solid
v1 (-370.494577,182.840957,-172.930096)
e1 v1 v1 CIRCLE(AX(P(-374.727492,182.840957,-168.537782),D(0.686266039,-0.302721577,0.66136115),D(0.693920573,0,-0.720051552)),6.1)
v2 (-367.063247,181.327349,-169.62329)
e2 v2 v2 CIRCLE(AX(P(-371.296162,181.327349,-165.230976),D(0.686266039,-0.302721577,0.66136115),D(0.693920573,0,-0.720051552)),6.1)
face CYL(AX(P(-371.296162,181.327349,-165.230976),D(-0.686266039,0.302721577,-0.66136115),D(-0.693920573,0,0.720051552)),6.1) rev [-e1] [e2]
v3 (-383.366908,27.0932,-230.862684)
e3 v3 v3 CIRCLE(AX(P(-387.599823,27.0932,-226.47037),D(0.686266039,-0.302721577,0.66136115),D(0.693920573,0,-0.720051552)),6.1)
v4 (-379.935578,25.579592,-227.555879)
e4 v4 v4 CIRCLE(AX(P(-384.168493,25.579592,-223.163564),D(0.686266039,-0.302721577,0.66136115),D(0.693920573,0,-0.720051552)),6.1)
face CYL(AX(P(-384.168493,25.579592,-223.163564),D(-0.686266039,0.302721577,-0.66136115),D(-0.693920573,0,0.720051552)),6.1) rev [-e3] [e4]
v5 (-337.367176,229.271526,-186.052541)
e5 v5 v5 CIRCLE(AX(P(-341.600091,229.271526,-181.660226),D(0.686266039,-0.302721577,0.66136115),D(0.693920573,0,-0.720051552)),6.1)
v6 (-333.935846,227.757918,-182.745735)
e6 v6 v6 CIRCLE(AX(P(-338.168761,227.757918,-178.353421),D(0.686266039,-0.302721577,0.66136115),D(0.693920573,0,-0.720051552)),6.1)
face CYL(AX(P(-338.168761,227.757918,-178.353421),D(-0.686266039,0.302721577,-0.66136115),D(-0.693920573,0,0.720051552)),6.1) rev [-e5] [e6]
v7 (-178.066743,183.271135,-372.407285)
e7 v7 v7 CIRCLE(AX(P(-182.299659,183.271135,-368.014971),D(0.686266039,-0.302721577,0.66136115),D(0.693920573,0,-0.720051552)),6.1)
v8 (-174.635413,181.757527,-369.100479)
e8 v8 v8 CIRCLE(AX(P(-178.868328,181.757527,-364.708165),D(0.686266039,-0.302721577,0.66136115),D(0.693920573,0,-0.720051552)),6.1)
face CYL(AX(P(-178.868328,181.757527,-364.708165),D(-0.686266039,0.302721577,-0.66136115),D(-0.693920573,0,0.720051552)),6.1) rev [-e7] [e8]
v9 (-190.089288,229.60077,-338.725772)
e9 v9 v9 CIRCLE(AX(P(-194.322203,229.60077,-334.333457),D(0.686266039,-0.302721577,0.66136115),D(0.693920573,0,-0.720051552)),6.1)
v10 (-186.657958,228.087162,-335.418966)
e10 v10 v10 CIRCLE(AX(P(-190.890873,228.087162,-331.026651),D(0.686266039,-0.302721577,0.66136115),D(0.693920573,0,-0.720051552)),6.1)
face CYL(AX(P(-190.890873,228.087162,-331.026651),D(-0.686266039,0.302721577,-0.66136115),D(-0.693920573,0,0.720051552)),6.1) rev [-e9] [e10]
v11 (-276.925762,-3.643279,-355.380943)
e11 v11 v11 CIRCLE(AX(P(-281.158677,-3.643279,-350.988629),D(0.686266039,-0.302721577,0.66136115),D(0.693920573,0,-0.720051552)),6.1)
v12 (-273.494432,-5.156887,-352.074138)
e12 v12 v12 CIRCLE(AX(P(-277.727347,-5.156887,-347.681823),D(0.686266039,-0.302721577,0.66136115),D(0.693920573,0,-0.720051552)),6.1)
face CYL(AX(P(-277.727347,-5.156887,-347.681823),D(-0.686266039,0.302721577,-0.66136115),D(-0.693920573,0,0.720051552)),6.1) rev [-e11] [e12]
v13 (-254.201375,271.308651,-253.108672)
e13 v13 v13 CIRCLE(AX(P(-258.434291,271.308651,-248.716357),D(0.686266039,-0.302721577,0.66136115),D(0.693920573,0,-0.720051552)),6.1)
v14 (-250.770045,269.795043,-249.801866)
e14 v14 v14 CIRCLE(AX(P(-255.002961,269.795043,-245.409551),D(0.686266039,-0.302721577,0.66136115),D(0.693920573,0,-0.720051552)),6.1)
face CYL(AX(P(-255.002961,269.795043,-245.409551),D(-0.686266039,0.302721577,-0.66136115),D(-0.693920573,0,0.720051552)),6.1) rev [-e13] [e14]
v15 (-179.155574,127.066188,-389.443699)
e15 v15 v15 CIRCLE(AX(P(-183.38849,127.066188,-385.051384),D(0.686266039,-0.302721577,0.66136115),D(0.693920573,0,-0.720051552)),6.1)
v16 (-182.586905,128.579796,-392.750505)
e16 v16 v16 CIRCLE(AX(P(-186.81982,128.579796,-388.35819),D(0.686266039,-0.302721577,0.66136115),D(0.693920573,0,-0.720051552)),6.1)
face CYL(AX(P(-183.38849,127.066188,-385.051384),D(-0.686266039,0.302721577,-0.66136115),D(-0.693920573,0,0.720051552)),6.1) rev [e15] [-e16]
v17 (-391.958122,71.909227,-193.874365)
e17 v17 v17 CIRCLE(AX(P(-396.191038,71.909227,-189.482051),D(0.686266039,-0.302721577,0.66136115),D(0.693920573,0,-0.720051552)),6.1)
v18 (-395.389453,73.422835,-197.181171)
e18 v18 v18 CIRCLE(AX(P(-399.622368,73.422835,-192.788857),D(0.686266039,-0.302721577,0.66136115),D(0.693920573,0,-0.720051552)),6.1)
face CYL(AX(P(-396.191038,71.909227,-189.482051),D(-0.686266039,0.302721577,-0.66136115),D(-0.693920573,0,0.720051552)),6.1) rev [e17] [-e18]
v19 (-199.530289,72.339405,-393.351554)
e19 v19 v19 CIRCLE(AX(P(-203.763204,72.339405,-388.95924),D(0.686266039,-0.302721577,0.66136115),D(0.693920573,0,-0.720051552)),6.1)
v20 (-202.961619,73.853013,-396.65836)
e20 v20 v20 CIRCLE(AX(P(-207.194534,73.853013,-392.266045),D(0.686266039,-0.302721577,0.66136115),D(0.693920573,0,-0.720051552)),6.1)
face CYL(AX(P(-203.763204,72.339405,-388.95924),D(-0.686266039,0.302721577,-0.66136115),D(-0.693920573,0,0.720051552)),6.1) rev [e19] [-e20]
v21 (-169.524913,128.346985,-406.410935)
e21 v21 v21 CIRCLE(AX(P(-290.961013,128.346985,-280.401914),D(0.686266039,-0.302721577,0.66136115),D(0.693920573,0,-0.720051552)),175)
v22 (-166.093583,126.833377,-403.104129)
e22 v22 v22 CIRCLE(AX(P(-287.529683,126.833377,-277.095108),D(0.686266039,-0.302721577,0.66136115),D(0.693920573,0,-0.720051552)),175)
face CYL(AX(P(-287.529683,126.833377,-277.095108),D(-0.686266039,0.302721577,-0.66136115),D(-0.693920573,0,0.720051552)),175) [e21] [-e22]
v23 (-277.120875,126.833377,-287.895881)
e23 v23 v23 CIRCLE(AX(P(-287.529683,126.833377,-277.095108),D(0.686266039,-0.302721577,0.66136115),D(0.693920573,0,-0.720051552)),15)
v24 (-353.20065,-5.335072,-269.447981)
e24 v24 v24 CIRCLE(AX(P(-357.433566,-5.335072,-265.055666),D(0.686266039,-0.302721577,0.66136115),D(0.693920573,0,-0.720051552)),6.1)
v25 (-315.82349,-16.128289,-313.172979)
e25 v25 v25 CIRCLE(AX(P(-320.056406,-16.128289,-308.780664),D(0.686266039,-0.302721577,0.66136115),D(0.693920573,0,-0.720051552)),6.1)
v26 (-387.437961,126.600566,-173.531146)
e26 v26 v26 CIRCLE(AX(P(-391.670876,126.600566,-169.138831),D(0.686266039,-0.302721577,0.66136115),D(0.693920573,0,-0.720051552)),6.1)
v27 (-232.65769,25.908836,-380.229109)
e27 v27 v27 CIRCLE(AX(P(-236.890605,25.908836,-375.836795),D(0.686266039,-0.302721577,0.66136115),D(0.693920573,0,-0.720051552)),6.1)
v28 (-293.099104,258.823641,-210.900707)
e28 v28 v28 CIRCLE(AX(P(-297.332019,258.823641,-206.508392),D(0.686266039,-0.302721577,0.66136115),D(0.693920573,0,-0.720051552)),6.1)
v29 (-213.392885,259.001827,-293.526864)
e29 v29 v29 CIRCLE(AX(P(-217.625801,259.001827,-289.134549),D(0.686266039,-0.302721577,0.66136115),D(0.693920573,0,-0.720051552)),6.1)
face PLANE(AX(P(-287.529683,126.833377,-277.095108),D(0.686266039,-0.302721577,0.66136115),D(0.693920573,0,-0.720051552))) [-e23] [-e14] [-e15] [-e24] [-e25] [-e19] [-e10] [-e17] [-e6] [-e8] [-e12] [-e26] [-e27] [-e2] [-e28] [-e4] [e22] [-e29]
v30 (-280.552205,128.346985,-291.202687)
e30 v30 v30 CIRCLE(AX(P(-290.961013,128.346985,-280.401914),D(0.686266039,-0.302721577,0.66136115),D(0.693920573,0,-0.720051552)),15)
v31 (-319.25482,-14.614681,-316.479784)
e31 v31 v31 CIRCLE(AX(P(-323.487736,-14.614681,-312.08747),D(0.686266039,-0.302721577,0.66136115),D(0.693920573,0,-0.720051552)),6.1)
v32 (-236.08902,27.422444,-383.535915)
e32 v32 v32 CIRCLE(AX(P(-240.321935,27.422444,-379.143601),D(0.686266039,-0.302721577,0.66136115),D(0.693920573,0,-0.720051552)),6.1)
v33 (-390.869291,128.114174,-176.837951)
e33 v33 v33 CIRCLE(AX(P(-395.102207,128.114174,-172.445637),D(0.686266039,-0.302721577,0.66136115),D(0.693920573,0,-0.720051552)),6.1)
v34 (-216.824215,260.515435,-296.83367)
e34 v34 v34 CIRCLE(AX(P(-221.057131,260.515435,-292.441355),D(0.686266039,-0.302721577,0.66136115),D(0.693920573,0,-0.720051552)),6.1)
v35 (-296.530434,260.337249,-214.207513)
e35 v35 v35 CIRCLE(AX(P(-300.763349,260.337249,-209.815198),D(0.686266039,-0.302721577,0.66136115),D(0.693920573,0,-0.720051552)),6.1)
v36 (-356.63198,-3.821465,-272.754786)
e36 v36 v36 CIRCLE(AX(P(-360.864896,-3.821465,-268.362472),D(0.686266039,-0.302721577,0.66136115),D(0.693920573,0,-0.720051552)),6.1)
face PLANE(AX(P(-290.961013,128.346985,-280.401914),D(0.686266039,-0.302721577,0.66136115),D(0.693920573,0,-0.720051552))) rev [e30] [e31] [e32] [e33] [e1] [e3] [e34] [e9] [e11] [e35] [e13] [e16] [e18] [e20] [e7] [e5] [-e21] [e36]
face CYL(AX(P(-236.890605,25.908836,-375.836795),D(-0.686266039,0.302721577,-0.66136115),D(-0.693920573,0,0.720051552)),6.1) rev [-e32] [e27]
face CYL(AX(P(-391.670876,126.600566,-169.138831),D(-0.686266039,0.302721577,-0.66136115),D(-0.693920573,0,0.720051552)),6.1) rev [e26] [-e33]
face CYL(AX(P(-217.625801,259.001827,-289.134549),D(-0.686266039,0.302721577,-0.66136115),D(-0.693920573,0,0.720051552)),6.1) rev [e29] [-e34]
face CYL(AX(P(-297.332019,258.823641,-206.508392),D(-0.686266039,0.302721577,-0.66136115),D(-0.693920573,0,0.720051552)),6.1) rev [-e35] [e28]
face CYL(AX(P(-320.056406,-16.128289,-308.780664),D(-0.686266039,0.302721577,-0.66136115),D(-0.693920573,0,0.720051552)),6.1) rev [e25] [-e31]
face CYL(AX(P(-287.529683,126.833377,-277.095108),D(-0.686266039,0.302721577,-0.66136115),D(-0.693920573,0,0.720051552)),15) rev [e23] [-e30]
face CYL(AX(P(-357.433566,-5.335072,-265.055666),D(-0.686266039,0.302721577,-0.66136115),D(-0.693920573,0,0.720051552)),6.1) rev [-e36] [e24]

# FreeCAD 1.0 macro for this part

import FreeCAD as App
import Part
import Sketcher
from FreeCAD import Vector

doc = App.newDocument("Part")
body = doc.addObject("PartDesign::Body", "Body")

# Sketch on an angled plane
sketch1 = body.newObject("Sketcher::SketchObject", "Sketch")
sketch1.Placement = App.Placement(Vector(-290.961013, 128.346985, -280.401914), App.Rotation(Vector(0.616918762, -0.239403959, -0.749731276), Vector(0.385292312, 0.922521215, 0.022459814), Vector(0.686266039, -0.302721577, 0.66136115), "ZXY"))
sketch1.addGeometry(Part.Circle(Vector(0, 0, 0), Vector(0, 0, 1), 175), False)
sketch1.addGeometry(Part.Circle(Vector(-75.811903, -129.431663, 0), Vector(0, 0, 1), 6.1), False)
sketch1.addGeometry(Part.Circle(Vector(-20.509712, -148.591224, 0), Vector(0, 0, 1), 6.1), False)
sketch1.addGeometry(Part.Circle(Vector(-119.572419, -90.567305, 0), Vector(0, 0, 1), 6.1), False)
sketch1.addGeometry(Part.Circle(Vector(-145.129117, -37.914896, 0), Vector(0, 0, 1), 6.1), False)
sketch1.addGeometry(Part.Circle(Vector(37.914896, -145.129117, 0), Vector(0, 0, 1), 6.1), False)
sketch1.addGeometry(Part.Circle(Vector(90.567305, -119.572419, 0), Vector(0, 0, 1), 6.1), False)
sketch1.addGeometry(Part.Circle(Vector(129.431663, -75.811903, 0), Vector(0, 0, 1), 6.1), False)
sketch1.addGeometry(Part.Circle(Vector(148.591224, -20.509712, 0), Vector(0, 0, 1), 6.1), False)
sketch1.addGeometry(Part.Circle(Vector(-148.591224, 20.509712, 0), Vector(0, 0, 1), 6.1), False)
sketch1.addGeometry(Part.Circle(Vector(-129.431663, 75.811903, 0), Vector(0, 0, 1), 6.1), False)
sketch1.addGeometry(Part.Circle(Vector(-90.567305, 119.572419, 0), Vector(0, 0, 1), 6.1), False)
sketch1.addGeometry(Part.Circle(Vector(-37.914896, 145.129117, 0), Vector(0, 0, 1), 6.1), False)
sketch1.addGeometry(Part.Circle(Vector(0, 0, 0), Vector(0, 0, 1), 15), False)
sketch1.addGeometry(Part.Circle(Vector(145.129117, 37.914896, 0), Vector(0, 0, 1), 6.1), False)
sketch1.addGeometry(Part.Circle(Vector(119.572419, 90.567305, 0), Vector(0, 0, 1), 6.1), False)
sketch1.addGeometry(Part.Circle(Vector(20.509712, 148.591224, 0), Vector(0, 0, 1), 6.1), False)
sketch1.addGeometry(Part.Circle(Vector(75.811903, 129.431663, 0), Vector(0, 0, 1), 6.1), False)
sketch1.addConstraint(Sketcher.Constraint("Coincident", 0, 3, -1, 1))
sketch1.addConstraint(Sketcher.Constraint("Coincident", 13, 3, -1, 1))
sketch1.addConstraint(Sketcher.Constraint("Equal", 1, 2))
sketch1.addConstraint(Sketcher.Constraint("Equal", 2, 3))
sketch1.addConstraint(Sketcher.Constraint("Equal", 3, 4))
sketch1.addConstraint(Sketcher.Constraint("Equal", 4, 5))
sketch1.addConstraint(Sketcher.Constraint("Equal", 5, 6))
sketch1.addConstraint(Sketcher.Constraint("Equal", 6, 7))
sketch1.addConstraint(Sketcher.Constraint("Equal", 7, 8))
sketch1.addConstraint(Sketcher.Constraint("Equal", 8, 9))
sketch1.addConstraint(Sketcher.Constraint("Equal", 9, 10))
sketch1.addConstraint(Sketcher.Constraint("Equal", 10, 11))
sketch1.addConstraint(Sketcher.Constraint("Equal", 11, 12))
sketch1.addConstraint(Sketcher.Constraint("Equal", 12, 14))
sketch1.addConstraint(Sketcher.Constraint("Equal", 14, 15))
sketch1.addConstraint(Sketcher.Constraint("Equal", 15, 16))
sketch1.addConstraint(Sketcher.Constraint("Equal", 16, 17))
sketch1.addConstraint(Sketcher.Constraint("Symmetric", 8, 3, 9, 3, -1, 1))
sketch1.addConstraint(Sketcher.Constraint("Symmetric", 7, 3, 10, 3, -1, 1))
sketch1.addConstraint(Sketcher.Constraint("Symmetric", 6, 3, 11, 3, -1, 1))
sketch1.addConstraint(Sketcher.Constraint("Symmetric", 5, 3, 12, 3, -1, 1))
sketch1.addConstraint(Sketcher.Constraint("Symmetric", 4, 3, 14, 3, -1, 1))
sketch1.addConstraint(Sketcher.Constraint("Symmetric", 3, 3, 15, 3, -1, 1))
sketch1.addConstraint(Sketcher.Constraint("Symmetric", 2, 3, 16, 3, -1, 1))
sketch1.addConstraint(Sketcher.Constraint("Symmetric", 1, 3, 17, 3, -1, 1))
sketch1.addConstraint(Sketcher.Constraint("Diameter", 0, 350.0))
sketch1.addConstraint(Sketcher.Constraint("Diameter", 13, 30.0))
sketch1.addConstraint(Sketcher.Constraint("Diameter", 1, 12.2))
sketch1.addConstraint(Sketcher.Constraint("DistanceX", 4, 3, 3, 3, 25.556699))
sketch1.addConstraint(Sketcher.Constraint("DistanceX", 1, 3, 5, 3, 113.726799))
sketch1.addConstraint(Sketcher.Constraint("DistanceY", 5, 3, 6, 3, 25.556699))
sketch1.addConstraint(Sketcher.Constraint("DistanceY", 4, 3, 10, 3, 113.726799))
sketch1.addConstraint(Sketcher.Constraint("DistanceX", 3, 3, -1, 1, 119.572419))
sketch1.addConstraint(Sketcher.Constraint("DistanceY", 6, 3, -1, 1, 119.572419))
sketch1.addConstraint(Sketcher.Constraint("DistanceX", 1, 3, 2, 3, 55.302191))
sketch1.addConstraint(Sketcher.Constraint("DistanceY", 2, 3, 1, 3, 19.159561))
sketch1.addConstraint(Sketcher.Constraint("DistanceY", 2, 3, 3, 3, 58.023918))
sketch1.addConstraint(Sketcher.Constraint("DistanceY", 3, 3, 4, 3, 52.652409))
sketch1.addConstraint(Sketcher.Constraint("DistanceY", 5, 3, 4, 3, 107.214221))
sketch1.addConstraint(Sketcher.Constraint("DistanceX", 5, 3, 6, 3, 52.652409))
sketch1.addConstraint(Sketcher.Constraint("DistanceX", 7, 3, 8, 3, 19.159561))
sketch1.addConstraint(Sketcher.Constraint("DistanceY", 7, 3, 8, 3, 55.302191))
sketch1.addConstraint(Sketcher.Constraint("DistanceX", 6, 3, 8, 3, 58.023918))
sketch1.addConstraint(Sketcher.Constraint("DistanceX", 9, 3, 1, 3, 72.779321))
pad1 = body.newObject("PartDesign::Pad", "Pad")
pad1.Profile = sketch1
pad1.Length = 5

doc.recompute()
